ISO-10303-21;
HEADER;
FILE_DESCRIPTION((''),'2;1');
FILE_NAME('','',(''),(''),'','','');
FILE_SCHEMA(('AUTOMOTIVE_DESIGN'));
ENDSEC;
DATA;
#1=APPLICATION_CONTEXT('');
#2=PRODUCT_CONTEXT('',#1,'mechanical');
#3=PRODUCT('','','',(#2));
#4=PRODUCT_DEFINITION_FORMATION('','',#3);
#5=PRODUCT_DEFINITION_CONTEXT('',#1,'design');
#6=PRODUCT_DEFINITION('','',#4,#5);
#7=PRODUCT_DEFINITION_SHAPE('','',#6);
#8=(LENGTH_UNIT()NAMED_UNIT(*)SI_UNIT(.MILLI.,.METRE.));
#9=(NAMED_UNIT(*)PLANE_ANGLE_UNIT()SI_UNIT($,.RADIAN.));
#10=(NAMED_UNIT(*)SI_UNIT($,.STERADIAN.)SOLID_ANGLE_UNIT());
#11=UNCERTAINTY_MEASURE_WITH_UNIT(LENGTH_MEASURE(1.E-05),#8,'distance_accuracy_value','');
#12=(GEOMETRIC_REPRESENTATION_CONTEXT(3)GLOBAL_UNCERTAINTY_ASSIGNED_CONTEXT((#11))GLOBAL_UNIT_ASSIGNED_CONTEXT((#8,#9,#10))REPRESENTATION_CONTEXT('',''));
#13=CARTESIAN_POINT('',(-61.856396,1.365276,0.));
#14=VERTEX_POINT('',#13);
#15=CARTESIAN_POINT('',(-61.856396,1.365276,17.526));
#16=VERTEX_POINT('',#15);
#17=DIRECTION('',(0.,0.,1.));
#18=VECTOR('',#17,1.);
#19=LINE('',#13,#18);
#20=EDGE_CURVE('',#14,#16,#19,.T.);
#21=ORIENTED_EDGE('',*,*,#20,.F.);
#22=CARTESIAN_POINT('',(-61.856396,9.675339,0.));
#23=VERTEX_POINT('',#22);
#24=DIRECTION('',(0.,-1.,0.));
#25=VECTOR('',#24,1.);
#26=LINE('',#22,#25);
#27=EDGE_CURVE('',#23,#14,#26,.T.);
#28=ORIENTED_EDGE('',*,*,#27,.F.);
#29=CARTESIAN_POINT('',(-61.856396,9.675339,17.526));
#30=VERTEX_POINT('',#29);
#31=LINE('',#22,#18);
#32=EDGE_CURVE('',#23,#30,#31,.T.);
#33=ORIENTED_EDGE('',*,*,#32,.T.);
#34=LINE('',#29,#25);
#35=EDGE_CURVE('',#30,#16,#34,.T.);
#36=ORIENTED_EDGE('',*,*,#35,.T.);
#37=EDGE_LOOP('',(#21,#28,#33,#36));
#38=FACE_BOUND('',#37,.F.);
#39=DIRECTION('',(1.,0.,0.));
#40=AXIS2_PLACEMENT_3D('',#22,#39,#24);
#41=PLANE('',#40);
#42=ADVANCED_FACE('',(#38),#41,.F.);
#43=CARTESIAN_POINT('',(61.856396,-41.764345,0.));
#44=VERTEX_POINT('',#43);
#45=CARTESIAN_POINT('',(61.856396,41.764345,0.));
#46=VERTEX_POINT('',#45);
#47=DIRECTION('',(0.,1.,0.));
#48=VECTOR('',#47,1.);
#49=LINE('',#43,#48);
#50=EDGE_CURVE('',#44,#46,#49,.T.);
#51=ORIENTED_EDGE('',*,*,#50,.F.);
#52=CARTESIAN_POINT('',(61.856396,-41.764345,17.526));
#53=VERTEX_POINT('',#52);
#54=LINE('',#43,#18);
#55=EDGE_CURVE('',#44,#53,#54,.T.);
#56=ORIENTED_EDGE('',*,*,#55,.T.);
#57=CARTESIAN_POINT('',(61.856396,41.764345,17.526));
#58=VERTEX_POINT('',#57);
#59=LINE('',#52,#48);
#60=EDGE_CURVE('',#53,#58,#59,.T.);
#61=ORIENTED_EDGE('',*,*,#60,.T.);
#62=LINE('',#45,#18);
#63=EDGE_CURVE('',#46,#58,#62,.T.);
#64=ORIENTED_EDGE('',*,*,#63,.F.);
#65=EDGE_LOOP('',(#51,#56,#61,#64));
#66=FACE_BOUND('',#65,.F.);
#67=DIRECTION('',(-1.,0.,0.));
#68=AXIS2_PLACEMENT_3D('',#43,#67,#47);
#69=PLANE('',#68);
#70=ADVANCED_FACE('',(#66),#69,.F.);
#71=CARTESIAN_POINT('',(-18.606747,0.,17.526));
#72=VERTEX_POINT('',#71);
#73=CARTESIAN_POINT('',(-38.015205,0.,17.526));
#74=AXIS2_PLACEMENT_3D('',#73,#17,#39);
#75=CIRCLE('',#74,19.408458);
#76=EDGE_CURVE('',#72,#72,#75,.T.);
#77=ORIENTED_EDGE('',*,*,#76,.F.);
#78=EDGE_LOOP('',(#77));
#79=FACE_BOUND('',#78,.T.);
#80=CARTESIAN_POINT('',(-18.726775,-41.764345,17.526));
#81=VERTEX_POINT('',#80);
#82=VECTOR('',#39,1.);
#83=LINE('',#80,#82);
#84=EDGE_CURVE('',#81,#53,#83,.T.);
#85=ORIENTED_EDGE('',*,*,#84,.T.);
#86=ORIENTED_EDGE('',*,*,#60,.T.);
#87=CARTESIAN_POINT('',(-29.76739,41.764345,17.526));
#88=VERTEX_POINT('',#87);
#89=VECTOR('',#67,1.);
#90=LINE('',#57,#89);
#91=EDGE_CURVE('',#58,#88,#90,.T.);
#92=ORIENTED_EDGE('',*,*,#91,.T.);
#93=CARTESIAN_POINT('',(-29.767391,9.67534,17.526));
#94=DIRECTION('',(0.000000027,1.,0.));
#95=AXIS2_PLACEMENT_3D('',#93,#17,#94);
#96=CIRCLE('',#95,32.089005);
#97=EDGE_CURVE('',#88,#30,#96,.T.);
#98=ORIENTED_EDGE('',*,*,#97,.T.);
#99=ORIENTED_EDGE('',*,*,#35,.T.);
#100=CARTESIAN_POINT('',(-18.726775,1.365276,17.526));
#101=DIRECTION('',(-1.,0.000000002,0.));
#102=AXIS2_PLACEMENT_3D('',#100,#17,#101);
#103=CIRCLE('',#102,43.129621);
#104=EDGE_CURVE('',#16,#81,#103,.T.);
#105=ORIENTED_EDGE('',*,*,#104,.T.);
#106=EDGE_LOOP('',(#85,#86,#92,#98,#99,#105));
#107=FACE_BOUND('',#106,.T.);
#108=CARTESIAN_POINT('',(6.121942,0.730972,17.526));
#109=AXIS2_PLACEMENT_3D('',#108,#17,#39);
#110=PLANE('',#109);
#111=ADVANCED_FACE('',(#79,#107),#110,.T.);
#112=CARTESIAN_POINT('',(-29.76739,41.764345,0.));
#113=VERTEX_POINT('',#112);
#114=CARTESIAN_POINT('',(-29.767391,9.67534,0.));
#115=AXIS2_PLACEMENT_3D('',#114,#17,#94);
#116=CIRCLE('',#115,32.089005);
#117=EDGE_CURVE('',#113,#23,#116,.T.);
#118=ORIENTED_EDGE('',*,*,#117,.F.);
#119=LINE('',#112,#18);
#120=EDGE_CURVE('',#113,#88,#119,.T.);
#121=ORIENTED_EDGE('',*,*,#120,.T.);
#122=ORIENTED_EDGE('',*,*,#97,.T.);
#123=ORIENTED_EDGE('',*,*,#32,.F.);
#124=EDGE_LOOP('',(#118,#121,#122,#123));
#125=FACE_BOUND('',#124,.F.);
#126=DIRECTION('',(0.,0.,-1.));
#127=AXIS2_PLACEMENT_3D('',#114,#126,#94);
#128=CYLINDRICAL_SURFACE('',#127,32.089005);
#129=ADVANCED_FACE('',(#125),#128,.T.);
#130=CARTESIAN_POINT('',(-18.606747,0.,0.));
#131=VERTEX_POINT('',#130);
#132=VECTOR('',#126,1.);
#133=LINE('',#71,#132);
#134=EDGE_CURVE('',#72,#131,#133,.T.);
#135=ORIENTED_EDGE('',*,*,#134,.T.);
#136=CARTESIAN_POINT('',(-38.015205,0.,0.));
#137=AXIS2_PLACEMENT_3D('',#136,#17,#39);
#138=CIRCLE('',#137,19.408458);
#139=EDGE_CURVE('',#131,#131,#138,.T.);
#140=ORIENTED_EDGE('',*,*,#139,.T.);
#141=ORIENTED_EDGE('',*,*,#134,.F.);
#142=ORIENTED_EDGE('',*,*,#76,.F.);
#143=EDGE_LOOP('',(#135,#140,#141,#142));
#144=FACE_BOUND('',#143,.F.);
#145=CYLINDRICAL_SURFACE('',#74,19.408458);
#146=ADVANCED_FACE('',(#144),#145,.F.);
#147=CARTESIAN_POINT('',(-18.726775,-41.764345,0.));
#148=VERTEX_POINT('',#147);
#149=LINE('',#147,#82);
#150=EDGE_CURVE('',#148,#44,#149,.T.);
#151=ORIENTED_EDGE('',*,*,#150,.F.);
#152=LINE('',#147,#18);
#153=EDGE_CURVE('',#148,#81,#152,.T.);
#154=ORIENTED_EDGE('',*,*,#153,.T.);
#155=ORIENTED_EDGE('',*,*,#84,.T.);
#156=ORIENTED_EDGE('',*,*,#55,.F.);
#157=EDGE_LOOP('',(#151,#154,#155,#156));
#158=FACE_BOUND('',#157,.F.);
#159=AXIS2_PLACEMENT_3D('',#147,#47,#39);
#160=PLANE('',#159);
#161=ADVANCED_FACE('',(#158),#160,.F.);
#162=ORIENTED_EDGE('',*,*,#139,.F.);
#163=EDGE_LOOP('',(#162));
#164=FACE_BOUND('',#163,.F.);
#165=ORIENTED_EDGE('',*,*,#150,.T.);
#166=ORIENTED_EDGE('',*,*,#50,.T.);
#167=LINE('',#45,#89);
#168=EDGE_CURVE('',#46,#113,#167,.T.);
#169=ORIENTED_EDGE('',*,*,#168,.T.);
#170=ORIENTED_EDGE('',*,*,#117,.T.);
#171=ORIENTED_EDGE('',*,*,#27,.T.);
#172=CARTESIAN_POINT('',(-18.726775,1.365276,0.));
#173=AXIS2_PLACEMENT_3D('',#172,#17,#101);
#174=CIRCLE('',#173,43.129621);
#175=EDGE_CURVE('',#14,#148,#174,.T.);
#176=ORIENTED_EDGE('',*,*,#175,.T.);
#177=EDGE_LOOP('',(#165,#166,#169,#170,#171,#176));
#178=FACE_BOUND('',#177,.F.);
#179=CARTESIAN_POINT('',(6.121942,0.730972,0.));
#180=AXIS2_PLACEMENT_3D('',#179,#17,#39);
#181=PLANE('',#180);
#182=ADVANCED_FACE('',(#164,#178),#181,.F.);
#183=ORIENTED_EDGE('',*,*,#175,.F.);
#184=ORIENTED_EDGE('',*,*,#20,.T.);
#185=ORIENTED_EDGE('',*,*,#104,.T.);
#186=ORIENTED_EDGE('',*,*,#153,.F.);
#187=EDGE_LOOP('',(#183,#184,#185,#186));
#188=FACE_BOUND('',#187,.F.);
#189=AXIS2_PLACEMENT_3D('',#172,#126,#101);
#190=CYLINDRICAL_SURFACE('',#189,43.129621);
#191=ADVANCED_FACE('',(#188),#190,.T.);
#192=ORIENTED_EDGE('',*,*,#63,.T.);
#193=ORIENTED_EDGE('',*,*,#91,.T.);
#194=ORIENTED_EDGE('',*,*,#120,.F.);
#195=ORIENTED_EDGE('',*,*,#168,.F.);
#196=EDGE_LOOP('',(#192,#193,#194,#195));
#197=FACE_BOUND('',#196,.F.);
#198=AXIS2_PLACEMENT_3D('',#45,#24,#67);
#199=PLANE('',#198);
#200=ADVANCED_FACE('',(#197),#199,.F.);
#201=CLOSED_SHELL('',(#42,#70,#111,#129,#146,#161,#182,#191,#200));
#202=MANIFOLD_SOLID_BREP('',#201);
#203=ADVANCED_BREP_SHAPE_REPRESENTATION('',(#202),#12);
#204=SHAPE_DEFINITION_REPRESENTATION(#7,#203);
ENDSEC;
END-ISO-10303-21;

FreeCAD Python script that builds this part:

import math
import FreeCAD as App
import Part
import Sketcher
from FreeCAD import Vector
Q = App.Units.Quantity

doc = App.newDocument("Part")
body = doc.addObject("PartDesign::Body", "Body")

sketch1 = body.newObject("Sketcher::SketchObject", "Sketch")
sketch1.AttachmentSupport = (doc.getObject("XY_Plane"), [""])
sketch1.MapMode = "FlatFace"
sketch1.addGeometry(Part.LineSegment(Vector(61.856396, -41.764345, 0), Vector(61.856396, 41.764345, 0)), False)
sketch1.addGeometry(Part.LineSegment(Vector(61.856396, 41.764345, 0), Vector(-29.76739, 41.764345, 0)), False)
sketch1.addGeometry(Part.ArcOfCircle(Part.Circle(Vector(-29.767391, 9.67534, 0), Vector(0, 0, 1), 32.089005), math.radians(89.999998), math.radians(180.000002)), False)
sketch1.addGeometry(Part.LineSegment(Vector(-61.856396, 9.675339, 0), Vector(-61.856396, 1.365276, 0)), False)
sketch1.addGeometry(Part.ArcOfCircle(Part.Circle(Vector(-18.726775, 1.365276, 0), Vector(0, 0, 1), 43.129621), math.radians(180), math.radians(270)), False)
sketch1.addGeometry(Part.LineSegment(Vector(-18.726775, -41.764345, 0), Vector(61.856396, -41.764345, 0)), False)
sketch1.addConstraint(Sketcher.Constraint("Coincident", 0, 2, 1, 1))
sketch1.addConstraint(Sketcher.Constraint("Tangent", 1, 2, 2, 1))
sketch1.addConstraint(Sketcher.Constraint("Tangent", 2, 2, 3, 1))
sketch1.addConstraint(Sketcher.Constraint("Tangent", 3, 2, 4, 1))
sketch1.addConstraint(Sketcher.Constraint("Tangent", 4, 2, 5, 1))
sketch1.addConstraint(Sketcher.Constraint("Coincident", 5, 2, 0, 1))
sketch1.addConstraint(Sketcher.Constraint("Vertical", 0))
sketch1.addConstraint(Sketcher.Constraint("Horizontal", 1))
sketch1.addConstraint(Sketcher.Constraint("Vertical", 3))
sketch1.addConstraint(Sketcher.Constraint("Horizontal", 5))
sketch1.addConstraint(Sketcher.Constraint("Radius", 4, 43.129621))
sketch1.addConstraint(Sketcher.Constraint("Radius", 2, 32.089005))
sketch1.addConstraint(Sketcher.Constraint("DistanceX", 5, 1, 5, 2, 80.583171))
sketch1.addConstraint(Sketcher.Constraint("DistanceY", 0, 1, 0, 2, 83.52869))
sketch1.addConstraint(Sketcher.Constraint("DistanceX", 2, 3, -1, 1, 29.767391))
sketch1.addConstraint(Sketcher.Constraint("DistanceY", -1, 1, 2, 3, 9.67534))
pad1 = body.newObject("PartDesign::Pad", "Pad")
pad1.Profile = sketch1
pad1.Length = Q("0.69 in")

sketch2 = body.newObject("Sketcher::SketchObject", "Sketch001")
sketch2.AttachmentSupport = (doc.getObject("XY_Plane"), [""])
sketch2.MapMode = "FlatFace"
sketch2.AttachmentOffset = App.Placement(Vector(0, 0, 0.69 * 25.4), App.Rotation())
sketch2.addGeometry(Part.Circle(Vector(-38.015205, 0, 0), Vector(0, 0, 1), 19.408458), False)
sketch2.addConstraint(Sketcher.Constraint("PointOnObject", 0, 3, -1))
sketch2.addConstraint(Sketcher.Constraint("Diameter", 0, 38.816916))
sketch2.addConstraint(Sketcher.Constraint("DistanceX", 0, 3, -1, 1, 38.015205))
pocket1 = body.newObject("PartDesign::Pocket", "Pocket")
pocket1.Profile = sketch2
pocket1.Type = "ThroughAll"

doc.recompute()
